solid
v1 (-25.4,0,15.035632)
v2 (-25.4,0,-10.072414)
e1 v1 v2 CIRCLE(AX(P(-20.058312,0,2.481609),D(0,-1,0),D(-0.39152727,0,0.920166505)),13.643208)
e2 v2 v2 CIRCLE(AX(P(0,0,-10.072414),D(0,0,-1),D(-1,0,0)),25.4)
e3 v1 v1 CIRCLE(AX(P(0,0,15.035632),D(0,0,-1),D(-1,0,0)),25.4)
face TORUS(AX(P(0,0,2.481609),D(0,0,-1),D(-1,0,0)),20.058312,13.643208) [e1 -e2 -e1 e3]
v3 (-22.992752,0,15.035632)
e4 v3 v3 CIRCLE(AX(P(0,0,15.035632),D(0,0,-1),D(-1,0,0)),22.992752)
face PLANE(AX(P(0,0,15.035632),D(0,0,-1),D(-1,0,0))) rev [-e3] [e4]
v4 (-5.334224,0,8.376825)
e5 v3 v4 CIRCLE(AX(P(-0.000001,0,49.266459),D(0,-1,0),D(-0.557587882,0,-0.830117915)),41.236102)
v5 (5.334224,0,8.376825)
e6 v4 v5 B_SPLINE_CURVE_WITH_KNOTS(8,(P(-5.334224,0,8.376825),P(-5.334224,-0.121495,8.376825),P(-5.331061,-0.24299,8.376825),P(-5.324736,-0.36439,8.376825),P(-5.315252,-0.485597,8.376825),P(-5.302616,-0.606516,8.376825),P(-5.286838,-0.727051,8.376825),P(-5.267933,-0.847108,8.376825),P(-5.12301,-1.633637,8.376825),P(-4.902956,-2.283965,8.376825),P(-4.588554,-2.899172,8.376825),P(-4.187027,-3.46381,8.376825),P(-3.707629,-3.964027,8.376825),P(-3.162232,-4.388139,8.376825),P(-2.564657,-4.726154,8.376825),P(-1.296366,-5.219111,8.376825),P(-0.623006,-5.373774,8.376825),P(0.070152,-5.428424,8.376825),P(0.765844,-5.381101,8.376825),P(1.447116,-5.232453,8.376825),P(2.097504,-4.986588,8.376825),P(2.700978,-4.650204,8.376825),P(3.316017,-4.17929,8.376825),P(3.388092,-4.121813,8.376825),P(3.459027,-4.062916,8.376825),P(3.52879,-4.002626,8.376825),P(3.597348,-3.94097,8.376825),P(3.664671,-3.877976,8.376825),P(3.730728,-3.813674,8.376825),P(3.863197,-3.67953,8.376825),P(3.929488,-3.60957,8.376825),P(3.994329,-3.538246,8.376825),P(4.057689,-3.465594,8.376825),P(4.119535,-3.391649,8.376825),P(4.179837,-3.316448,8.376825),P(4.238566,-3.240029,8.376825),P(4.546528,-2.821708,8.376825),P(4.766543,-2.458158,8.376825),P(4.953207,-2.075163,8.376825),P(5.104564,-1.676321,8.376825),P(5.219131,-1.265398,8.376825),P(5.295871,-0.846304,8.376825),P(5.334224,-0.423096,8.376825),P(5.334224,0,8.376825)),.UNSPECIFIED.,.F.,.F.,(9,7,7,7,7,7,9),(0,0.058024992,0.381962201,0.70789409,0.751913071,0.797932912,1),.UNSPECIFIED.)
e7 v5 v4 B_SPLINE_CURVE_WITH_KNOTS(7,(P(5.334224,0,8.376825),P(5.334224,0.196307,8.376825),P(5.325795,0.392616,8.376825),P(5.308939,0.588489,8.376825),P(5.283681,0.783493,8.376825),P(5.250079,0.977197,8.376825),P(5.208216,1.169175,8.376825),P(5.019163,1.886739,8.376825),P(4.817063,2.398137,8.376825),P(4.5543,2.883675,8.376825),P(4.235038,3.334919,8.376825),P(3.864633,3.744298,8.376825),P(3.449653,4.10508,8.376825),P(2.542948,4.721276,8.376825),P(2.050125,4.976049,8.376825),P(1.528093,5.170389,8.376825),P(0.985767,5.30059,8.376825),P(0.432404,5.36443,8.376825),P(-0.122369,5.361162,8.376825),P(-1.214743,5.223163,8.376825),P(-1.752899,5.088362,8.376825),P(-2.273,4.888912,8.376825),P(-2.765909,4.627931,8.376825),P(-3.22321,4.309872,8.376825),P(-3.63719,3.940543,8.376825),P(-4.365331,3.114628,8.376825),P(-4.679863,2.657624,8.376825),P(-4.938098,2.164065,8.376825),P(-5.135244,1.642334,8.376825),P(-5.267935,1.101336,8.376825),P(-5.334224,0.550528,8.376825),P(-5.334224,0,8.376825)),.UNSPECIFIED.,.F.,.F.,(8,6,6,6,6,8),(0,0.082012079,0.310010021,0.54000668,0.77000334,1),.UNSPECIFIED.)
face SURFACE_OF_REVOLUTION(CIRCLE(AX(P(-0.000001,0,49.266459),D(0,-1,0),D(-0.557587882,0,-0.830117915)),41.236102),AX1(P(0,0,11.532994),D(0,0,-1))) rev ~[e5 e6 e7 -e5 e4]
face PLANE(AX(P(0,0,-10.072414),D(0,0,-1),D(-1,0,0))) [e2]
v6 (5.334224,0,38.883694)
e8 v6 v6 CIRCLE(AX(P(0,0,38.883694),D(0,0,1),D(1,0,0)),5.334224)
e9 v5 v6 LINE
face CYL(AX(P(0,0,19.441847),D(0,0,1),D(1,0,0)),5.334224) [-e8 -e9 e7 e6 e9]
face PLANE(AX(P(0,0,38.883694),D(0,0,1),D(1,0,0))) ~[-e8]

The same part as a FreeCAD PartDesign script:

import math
import FreeCAD as App
import Part
import Sketcher
Q = App.Units.Quantity


def add_polygon(sketch, points):
    """Adds a closed chain of lines whose ends are joined by coincident constraints."""
    first, n = sketch.GeometryCount, len(points)
    for a, b in zip(points, points[1:] + points[:1]):
        sketch.addGeometry(Part.LineSegment(App.Vector(*a, 0), App.Vector(*b, 0)), False)
    for i in range(n):
        sketch.addConstraint(Sketcher.Constraint("Coincident", first + i, 2, first + (i + 1) % n, 1))

doc = App.newDocument("Part")
body = doc.addObject("PartDesign::Body", "Body")

# Sketch on XZ plane
sketch1 = body.newObject("Sketcher::SketchObject", "Sketch")
sketch1.AttachmentSupport = (doc.getObject("XZ_Plane"), [""])
sketch1.MapMode = "FlatFace"
sketch1.addGeometry([
    Part.LineSegment(App.Vector(0, -10, 0), App.Vector(0, 15, 0)),
    Part.LineSegment(App.Vector(0, 15, 0), App.Vector(-25, 15, 0)),
    Part.ArcOfCircle(Part.Circle(App.Vector(-20, 2, 0), App.Vector(0, 0, 1), 14), math.radians(113), math.radians(247)),
    Part.LineSegment(App.Vector(-25, -10, 0), App.Vector(0, -10, 0)),
], False)
sketch1.addConstraint([
    Sketcher.Constraint("Coincident", 0, 2, 1, 1),
    Sketcher.Constraint("Coincident", 1, 2, 2, 1),
    Sketcher.Constraint("Coincident", 2, 2, 3, 1),
    Sketcher.Constraint("Coincident", 3, 2, 0, 1),
    Sketcher.Constraint("Vertical", 0),
    Sketcher.Constraint("Horizontal", 1),
    Sketcher.Constraint("Horizontal", 3),
    Sketcher.Constraint("PointOnObject", 0, 2, -2),
    Sketcher.Constraint("Vertical", 1, 2, 2, 2),
    Sketcher.Constraint("DistanceX", 1, 2, 1, 1, Q("1 in")),
    Sketcher.Constraint("Radius", 2, 13.643208),
    Sketcher.Constraint("DistanceY", 0, 1, 0, 2, 25.108046),
    Sketcher.Constraint("DistanceY", -1, 1, 2, 3, 2.481609),
])
revolution = body.newObject("PartDesign::Revolution", "Revolution")
revolution.Profile = sketch1
revolution.ReferenceAxis = (sketch1, ["V_Axis"])
revolution.Angle = 360

# Sketch on XZ plane
sketch2 = body.newObject("Sketcher::SketchObject", "Sketch001")
sketch2.AttachmentSupport = (doc.getObject("XZ_Plane"), [""])
sketch2.MapMode = "FlatFace"
sketch2.addGeometry([
    Part.LineSegment(App.Vector(0, 15, 0), App.Vector(-23, 15, 0)),
    Part.ArcOfCircle(Part.Circle(App.Vector(0, 49, 0), App.Vector(0, 0, 1), 41), math.radians(-124), math.radians(-90)),
    Part.LineSegment(App.Vector(0, 8, 0), App.Vector(0, 15, 0)),
], False)
sketch2.addConstraint([
    Sketcher.Constraint("Coincident", 0, 2, 1, 1),
    Sketcher.Constraint("Coincident", 1, 2, 2, 1),
    Sketcher.Constraint("Coincident", 2, 2, 0, 1),
    Sketcher.Constraint("Horizontal", 0),
    Sketcher.Constraint("Vertical", 2),
    Sketcher.Constraint("PointOnObject", 1, 3, -2),
    Sketcher.Constraint("PointOnObject", 1, 2, -2),
    Sketcher.Constraint("Radius", 1, 41.236102),
    Sketcher.Constraint("DistanceX", 0, 2, 0, 1, 22.992752),
    Sketcher.Constraint("DistanceY", -1, 1, 1, 3, 49.266459),
])
groove = body.newObject("PartDesign::Groove", "Groove")
groove.Profile = sketch2
groove.ReferenceAxis = (sketch2, ["V_Axis"])
groove.Angle = 360

# Sketch on XZ plane
sketch3 = body.newObject("Sketcher::SketchObject", "Sketch002")
sketch3.AttachmentSupport = (doc.getObject("XZ_Plane"), [""])
sketch3.MapMode = "FlatFace"
add_polygon(sketch3, [(0, 39), (0, 0), (5, 0), (5, 39)])  # lines 0-3
sketch3.addConstraint([
    Sketcher.Constraint("Vertical", 0),
    Sketcher.Constraint("Horizontal", 1),
    Sketcher.Constraint("Vertical", 2),
    Sketcher.Constraint("Horizontal", 3),
    Sketcher.Constraint("Coincident", 0, 2, -1, 1),
    Sketcher.Constraint("DistanceX", 1, 1, 1, 2, 5.334224),
    Sketcher.Constraint("DistanceY", 0, 2, 0, 1, 38.883694),
])
revolution2 = body.newObject("PartDesign::Revolution", "Revolution001")
revolution2.Profile = sketch3
revolution2.ReferenceAxis = (sketch3, ["V_Axis"])
revolution2.Angle = 360

doc.recompute()
